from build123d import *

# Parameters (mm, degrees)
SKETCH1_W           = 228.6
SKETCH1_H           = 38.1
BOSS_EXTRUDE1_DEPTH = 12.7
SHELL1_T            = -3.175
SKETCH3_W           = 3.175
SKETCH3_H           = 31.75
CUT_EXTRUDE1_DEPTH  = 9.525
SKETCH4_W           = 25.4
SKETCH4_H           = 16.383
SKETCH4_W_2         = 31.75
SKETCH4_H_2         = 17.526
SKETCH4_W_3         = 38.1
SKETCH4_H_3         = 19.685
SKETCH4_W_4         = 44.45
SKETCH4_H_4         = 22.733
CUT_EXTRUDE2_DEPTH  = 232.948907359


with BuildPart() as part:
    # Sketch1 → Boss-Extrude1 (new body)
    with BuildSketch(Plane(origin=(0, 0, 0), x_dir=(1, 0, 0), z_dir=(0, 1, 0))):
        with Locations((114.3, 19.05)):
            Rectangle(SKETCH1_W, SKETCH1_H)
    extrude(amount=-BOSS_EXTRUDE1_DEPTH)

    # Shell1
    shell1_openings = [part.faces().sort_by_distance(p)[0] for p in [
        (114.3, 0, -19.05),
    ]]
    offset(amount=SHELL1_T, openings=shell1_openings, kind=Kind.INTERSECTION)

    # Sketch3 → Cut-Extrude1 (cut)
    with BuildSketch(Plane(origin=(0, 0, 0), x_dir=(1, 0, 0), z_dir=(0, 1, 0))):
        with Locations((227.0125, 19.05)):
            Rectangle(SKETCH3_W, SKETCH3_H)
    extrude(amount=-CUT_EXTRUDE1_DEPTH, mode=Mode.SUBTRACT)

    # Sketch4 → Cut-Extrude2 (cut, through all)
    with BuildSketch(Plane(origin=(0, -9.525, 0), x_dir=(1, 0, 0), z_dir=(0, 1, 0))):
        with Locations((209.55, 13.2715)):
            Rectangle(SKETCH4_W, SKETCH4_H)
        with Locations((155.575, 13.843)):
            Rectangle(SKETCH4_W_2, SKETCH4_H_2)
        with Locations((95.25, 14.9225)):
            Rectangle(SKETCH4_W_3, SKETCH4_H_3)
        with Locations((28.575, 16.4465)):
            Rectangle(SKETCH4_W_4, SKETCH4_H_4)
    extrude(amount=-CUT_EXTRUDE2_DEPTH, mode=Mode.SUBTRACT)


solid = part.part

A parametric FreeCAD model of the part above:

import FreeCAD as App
import Part
import Sketcher

V = App.Vector
Q = App.Units.Quantity


def faces_at(feature, points):
    """Names of the faces that lie closest to the given points."""
    faces = feature.Shape.Faces
    near = lambda p: min(range(len(faces)), key=lambda i: faces[i].distToShape(Part.Vertex(*p))[0])
    return sorted({f"Face{near(p) + 1}" for p in points})

doc = App.newDocument("Part")
body = doc.addObject("PartDesign::Body", "Body")

sketch1 = doc.addObject("Sketcher::SketchObject", "Sketch")
body.addObject(sketch1)
sketch1.AttachmentSupport = (doc.XZ_Plane, [""])
sketch1.MapMode = "FlatFace"
sketch1.addGeometry([
    Part.LineSegment(V(0, -38, 0), V(0, 0, 0)),
    Part.LineSegment(V(0, 0, 0), V(229, 0, 0)),
    Part.LineSegment(V(229, 0, 0), V(229, -38, 0)),
    Part.LineSegment(V(229, -38, 0), V(0, -38, 0)),
], False)
sketch1.addConstraint([
    Sketcher.Constraint("Coincident", 0, 2, 1, 1),
    Sketcher.Constraint("Coincident", 1, 2, 2, 1),
    Sketcher.Constraint("Coincident", 2, 2, 3, 1),
    Sketcher.Constraint("Coincident", 3, 2, 0, 1),
    Sketcher.Constraint("Vertical", 0),
    Sketcher.Constraint("Horizontal", 1),
    Sketcher.Constraint("Vertical", 2),
    Sketcher.Constraint("Horizontal", 3),
    Sketcher.Constraint("Coincident", 0, 2, -1, 1),
    Sketcher.Constraint("DistanceX", 1, 1, 1, 2, Q("9 in")),
    Sketcher.Constraint("DistanceY", 0, 1, 0, 2, Q("1.5 in")),
])
pad1 = doc.addObject("PartDesign::Pad", "Pad")
body.addObject(pad1)
pad1.Profile = sketch1
pad1.Length = Q("0.5 in")
doc.recompute()

thickness = doc.addObject("PartDesign::Thickness", "Thickness")
body.addObject(thickness)
thickness.Base = (pad1, faces_at(pad1, [(114.3, 0, -19.05)]))
thickness.Value = Q("0.125 in")
thickness.Reversed = True
thickness.Join = "Intersection"

sketch2 = doc.addObject("Sketcher::SketchObject", "Sketch001")
body.addObject(sketch2)
sketch2.AttachmentSupport = (doc.XZ_Plane, [""])
sketch2.MapMode = "FlatFace"
sketch2.addGeometry([
    Part.LineSegment(V(225.4, -34.9, 0), V(225.4, -3.2, 0)),
    Part.LineSegment(V(225.4, -3.2, 0), V(228.6, -3.2, 0)),
    Part.LineSegment(V(228.6, -3.2, 0), V(228.6, -34.9, 0)),
    Part.LineSegment(V(228.6, -34.9, 0), V(225.4, -34.9, 0)),
], False)
sketch2.addConstraint([
    Sketcher.Constraint("Coincident", 0, 2, 1, 1),
    Sketcher.Constraint("Coincident", 1, 2, 2, 1),
    Sketcher.Constraint("Coincident", 2, 2, 3, 1),
    Sketcher.Constraint("Coincident", 3, 2, 0, 1),
    Sketcher.Constraint("Vertical", 0),
    Sketcher.Constraint("Horizontal", 1),
    Sketcher.Constraint("Vertical", 2),
    Sketcher.Constraint("Horizontal", 3),
    Sketcher.Constraint("DistanceX", -1, 1, 1, 2, Q("9 in")),
    Sketcher.Constraint("DistanceY", 0, 1, 0, 2, Q("1.25 in")),
    Sketcher.Constraint("DistanceX", 1, 1, 1, 2, Q("0.125 in")),
    Sketcher.Constraint("DistanceY", 0, 2, -1, 1, Q("0.125 in")),
])
pocket1 = doc.addObject("PartDesign::Pocket", "Pocket")
body.addObject(pocket1)
pocket1.Profile = sketch2
pocket1.Length = Q("0.375 in")
pocket1.Reversed = True

sketch3 = doc.addObject("Sketcher::SketchObject", "Sketch002")
body.addObject(sketch3)
sketch3.AttachmentSupport = (doc.XZ_Plane, [""])
sketch3.MapMode = "FlatFace"
sketch3.AttachmentOffset = App.Placement(V(0, 0, 0.375 * 25.4), App.Rotation())
sketch3.addGeometry([
    Part.LineSegment(V(197, -21, 0), V(197, -5, 0)),
    Part.LineSegment(V(197, -5, 0), V(222, -5, 0)),
    Part.LineSegment(V(222, -5, 0), V(222, -21, 0)),
    Part.LineSegment(V(222, -21, 0), V(197, -21, 0)),
    Part.LineSegment(V(140, -23, 0), V(140, -5, 0)),
    Part.LineSegment(V(140, -5, 0), V(171, -5, 0)),
    Part.LineSegment(V(171, -5, 0), V(171, -23, 0)),
    Part.LineSegment(V(171, -23, 0), V(140, -23, 0)),
    Part.LineSegment(V(76, -25, 0), V(76, -5, 0)),
    Part.LineSegment(V(76, -5, 0), V(114, -5, 0)),
    Part.LineSegment(V(114, -5, 0), V(114, -25, 0)),
    Part.LineSegment(V(114, -25, 0), V(76, -25, 0)),
    Part.LineSegment(V(6, -28, 0), V(6, -5, 0)),
    Part.LineSegment(V(6, -5, 0), V(51, -5, 0)),
    Part.LineSegment(V(51, -5, 0), V(51, -28, 0)),
    Part.LineSegment(V(51, -28, 0), V(6, -28, 0)),
], False)
sketch3.addConstraint([
    Sketcher.Constraint("Coincident", 0, 2, 1, 1),
    Sketcher.Constraint("Coincident", 1, 2, 2, 1),
    Sketcher.Constraint("Coincident", 2, 2, 3, 1),
    Sketcher.Constraint("Coincident", 3, 2, 0, 1),
    Sketcher.Constraint("Coincident", 4, 2, 5, 1),
    Sketcher.Constraint("Coincident", 5, 2, 6, 1),
    Sketcher.Constraint("Coincident", 6, 2, 7, 1),
    Sketcher.Constraint("Coincident", 7, 2, 4, 1),
    Sketcher.Constraint("Coincident", 8, 2, 9, 1),
    Sketcher.Constraint("Coincident", 9, 2, 10, 1),
    Sketcher.Constraint("Coincident", 10, 2, 11, 1),
    Sketcher.Constraint("Coincident", 11, 2, 8, 1),
    Sketcher.Constraint("Coincident", 12, 2, 13, 1),
    Sketcher.Constraint("Coincident", 13, 2, 14, 1),
    Sketcher.Constraint("Coincident", 14, 2, 15, 1),
    Sketcher.Constraint("Coincident", 15, 2, 12, 1),
    Sketcher.Constraint("Vertical", 0),
    Sketcher.Constraint("Horizontal", 1),
    Sketcher.Constraint("Vertical", 2),
    Sketcher.Constraint("Horizontal", 3),
    Sketcher.Constraint("Vertical", 4),
    Sketcher.Constraint("Horizontal", 5),
    Sketcher.Constraint("Vertical", 6),
    Sketcher.Constraint("Horizontal", 7),
    Sketcher.Constraint("Vertical", 8),
    Sketcher.Constraint("Horizontal", 9),
    Sketcher.Constraint("Vertical", 10),
    Sketcher.Constraint("Horizontal", 11),
    Sketcher.Constraint("Vertical", 12),
    Sketcher.Constraint("Horizontal", 13),
    Sketcher.Constraint("Vertical", 14),
    Sketcher.Constraint("Horizontal", 15),
    Sketcher.Constraint("Horizontal", 1, 2, 4, 2),
    Sketcher.Constraint("Horizontal", 5, 2, 8, 2),
    Sketcher.Constraint("Horizontal", 9, 2, 12, 2),
    Sketcher.Constraint("DistanceX", 1, 1, 1, 2, Q("1 in")),
    Sketcher.Constraint("DistanceX", 9, 1, 9, 2, Q("1.5 in")),
    Sketcher.Constraint("DistanceX", -1, 1, 8, 2, Q("3 in")),
    Sketcher.Constraint("DistanceX", -1, 1, 13, 2, Q("2 in")),
    Sketcher.Constraint("DistanceX", 5, 2, 0, 2, Q("1 in")),
    Sketcher.Constraint("DistanceX", 9, 2, 4, 2, Q("1 in")),
    Sketcher.Constraint("DistanceX", 5, 1, 5, 2, Q("1.25 in")),
    Sketcher.Constraint("DistanceX", 13, 1, 13, 2, Q("1.75 in")),
    Sketcher.Constraint("DistanceY", 4, 1, 4, 2, Q("0.69 in")),
    Sketcher.Constraint("DistanceY", 0, 2, -1, 1, Q("0.2 in")),
    Sketcher.Constraint("DistanceY", 0, 1, 0, 2, Q("0.645 in")),
    Sketcher.Constraint("DistanceY", 8, 1, 8, 2, Q("0.775 in")),
    Sketcher.Constraint("DistanceY", 12, 1, 12, 2, Q("0.895 in")),
])
pocket2 = doc.addObject("PartDesign::Pocket", "Pocket001")
body.addObject(pocket2)
pocket2.Profile = sketch3
pocket2.Type = "ThroughAll"
pocket2.Reversed = True

doc.recompute()
